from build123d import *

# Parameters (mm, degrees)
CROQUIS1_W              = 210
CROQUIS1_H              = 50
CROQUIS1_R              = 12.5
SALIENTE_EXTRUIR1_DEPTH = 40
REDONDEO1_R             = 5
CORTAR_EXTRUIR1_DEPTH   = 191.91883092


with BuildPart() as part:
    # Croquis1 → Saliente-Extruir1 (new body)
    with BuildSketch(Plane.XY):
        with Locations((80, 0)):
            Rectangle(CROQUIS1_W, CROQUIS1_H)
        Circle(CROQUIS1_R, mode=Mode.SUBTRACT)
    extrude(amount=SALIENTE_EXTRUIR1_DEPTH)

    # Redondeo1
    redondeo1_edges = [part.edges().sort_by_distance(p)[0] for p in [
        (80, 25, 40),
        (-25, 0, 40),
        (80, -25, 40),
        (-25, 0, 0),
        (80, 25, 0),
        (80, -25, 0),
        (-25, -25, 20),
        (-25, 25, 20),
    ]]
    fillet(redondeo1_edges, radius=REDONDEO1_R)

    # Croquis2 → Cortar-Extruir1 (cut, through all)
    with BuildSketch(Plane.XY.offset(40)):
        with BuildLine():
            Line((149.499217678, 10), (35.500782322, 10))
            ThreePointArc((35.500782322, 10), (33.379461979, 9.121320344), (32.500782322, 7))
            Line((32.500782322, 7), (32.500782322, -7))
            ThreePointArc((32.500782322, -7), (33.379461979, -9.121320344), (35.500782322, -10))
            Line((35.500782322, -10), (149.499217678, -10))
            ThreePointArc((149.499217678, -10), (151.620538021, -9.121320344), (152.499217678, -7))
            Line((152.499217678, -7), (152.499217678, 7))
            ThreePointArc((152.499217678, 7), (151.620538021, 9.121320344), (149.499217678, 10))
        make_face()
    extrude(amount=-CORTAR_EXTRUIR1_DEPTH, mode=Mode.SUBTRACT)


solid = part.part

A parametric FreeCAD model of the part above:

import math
import FreeCAD as App
import Part
import Sketcher

V = App.Vector
Q = App.Units.Quantity


def edges_at(feature, points):
    """Names of the edges that pass closest to the given points."""
    edges = feature.Shape.Edges
    near = lambda p: min(range(len(edges)), key=lambda i: edges[i].distToShape(Part.Vertex(*p))[0])
    return sorted({f"Edge{near(p) + 1}" for p in points})


def add_polygon(sketch, points):
    """Adds a closed chain of lines whose ends are joined by coincident constraints."""
    first, n = sketch.GeometryCount, len(points)
    for a, b in zip(points, points[1:] + points[:1]):
        sketch.addGeometry(Part.LineSegment(App.Vector(*a, 0), App.Vector(*b, 0)), False)
    for i in range(n):
        sketch.addConstraint(Sketcher.Constraint("Coincident", first + i, 2, first + (i + 1) % n, 1))

doc = App.newDocument("Part")
body = doc.addObject("PartDesign::Body", "Body")

# Sketch on XY plane
sketch1 = body.newObject("Sketcher::SketchObject", "Sketch")
sketch1.AttachmentSupport = (doc.getObject("XY_Plane"), [""])
sketch1.MapMode = "FlatFace"
add_polygon(sketch1, [(-25, 25), (-25, -25), (185, -25), (185, 25)])  # lines 0-3
sketch1.addGeometry(Part.Circle(V(0, 0, 0), V(0, 0, 1), 12), False)  # 4
sketch1.addConstraint([
    Sketcher.Constraint("Vertical", 0),
    Sketcher.Constraint("Horizontal", 1),
    Sketcher.Constraint("Vertical", 2),
    Sketcher.Constraint("Horizontal", 3),
    Sketcher.Constraint("Coincident", 4, 3, -1, 1),
    Sketcher.Constraint("Diameter", 4, Q("25 mm")),
    Sketcher.Constraint("DistanceX", 1, 1, 1, 2, Q("210 mm")),
    Sketcher.Constraint("DistanceY", 0, 2, 0, 1, Q("50 mm")),
    Sketcher.Constraint("DistanceX", 0, 2, -1, 1, Q("25 mm")),
    Sketcher.Constraint("DistanceY", 0, 2, -1, 1, Q("25 mm")),
])
pad1 = body.newObject("PartDesign::Pad", "Pad")
pad1.Profile = sketch1
pad1.Length = 40
doc.recompute()

fillet = body.newObject("PartDesign::Fillet", "Fillet")
fillet.Base = (pad1, edges_at(pad1, [
    (80, 25, 40),
    (-25, 0, 40),
    (80, -25, 40),
    (-25, 0, 0),
    (80, 25, 0),
    (80, -25, 0),
    (-25, -25, 20),
    (-25, 25, 20),
]))
fillet.Radius = 5

# Sketch on XY plane
sketch2 = body.newObject("Sketcher::SketchObject", "Sketch001")
sketch2.AttachmentSupport = (doc.getObject("XY_Plane"), [""])
sketch2.MapMode = "FlatFace"
sketch2.AttachmentOffset = App.Placement(V(0, 0, 40), App.Rotation())
sketch2.addGeometry([
    Part.LineSegment(V(149.5, 10, 0), V(35.5, 10, 0)),  # 0
    Part.ArcOfCircle(Part.Circle(V(35.5, 7, 0), V(0, 0, 1), 3), math.radians(90), math.radians(180)),  # 1
    Part.LineSegment(V(32.5, 7, 0), V(32.5, -7, 0)),  # 2
    Part.ArcOfCircle(Part.Circle(V(35.5, -7, 0), V(0, 0, 1), 3), math.radians(180), math.radians(270)),  # 3
    Part.LineSegment(V(35.5, -10, 0), V(149.5, -10, 0)),  # 4
    Part.ArcOfCircle(Part.Circle(V(149.5, -7, 0), V(0, 0, 1), 3), math.radians(-90), math.radians(0)),  # 5
    Part.LineSegment(V(152.5, -7, 0), V(152.5, 7, 0)),  # 6
    Part.ArcOfCircle(Part.Circle(V(149.5, 7, 0), V(0, 0, 1), 3), math.radians(0), math.radians(90)),  # 7
], False)
sketch2.addConstraint([
    Sketcher.Constraint("Tangent", 0, 2, 1, 1),
    Sketcher.Constraint("Tangent", 1, 2, 2, 1),
    Sketcher.Constraint("Tangent", 2, 2, 3, 1),
    Sketcher.Constraint("Tangent", 3, 2, 4, 1),
    Sketcher.Constraint("Tangent", 4, 2, 5, 1),
    Sketcher.Constraint("Tangent", 5, 2, 6, 1),
    Sketcher.Constraint("Tangent", 6, 2, 7, 1),
    Sketcher.Constraint("Tangent", 7, 2, 0, 1),
    Sketcher.Constraint("Horizontal", 0),
    Sketcher.Constraint("Vertical", 2),
    Sketcher.Constraint("Horizontal", 4),
    Sketcher.Constraint("Vertical", 6),
    Sketcher.Constraint("Equal", 1, 3),
    Sketcher.Constraint("Equal", 3, 5),
    Sketcher.Constraint("Equal", 5, 7),
    Sketcher.Constraint("Radius", 1, Q("3 mm")),
    Sketcher.Constraint("DistanceY", 2, 2, 2, 1, Q("14 mm")),
    Sketcher.Constraint("DistanceY", -1, 1, 1, 3, Q("7 mm")),
    Sketcher.Constraint("DistanceX", 0, 2, 0, 1, Q("113.998435 mm")),
    Sketcher.Constraint("DistanceX", -1, 1, 1, 3, Q("35.500782 mm")),
])
pocket1 = body.newObject("PartDesign::Pocket", "Pocket")
pocket1.Profile = sketch2
pocket1.Type = "ThroughAll"

doc.recompute()
